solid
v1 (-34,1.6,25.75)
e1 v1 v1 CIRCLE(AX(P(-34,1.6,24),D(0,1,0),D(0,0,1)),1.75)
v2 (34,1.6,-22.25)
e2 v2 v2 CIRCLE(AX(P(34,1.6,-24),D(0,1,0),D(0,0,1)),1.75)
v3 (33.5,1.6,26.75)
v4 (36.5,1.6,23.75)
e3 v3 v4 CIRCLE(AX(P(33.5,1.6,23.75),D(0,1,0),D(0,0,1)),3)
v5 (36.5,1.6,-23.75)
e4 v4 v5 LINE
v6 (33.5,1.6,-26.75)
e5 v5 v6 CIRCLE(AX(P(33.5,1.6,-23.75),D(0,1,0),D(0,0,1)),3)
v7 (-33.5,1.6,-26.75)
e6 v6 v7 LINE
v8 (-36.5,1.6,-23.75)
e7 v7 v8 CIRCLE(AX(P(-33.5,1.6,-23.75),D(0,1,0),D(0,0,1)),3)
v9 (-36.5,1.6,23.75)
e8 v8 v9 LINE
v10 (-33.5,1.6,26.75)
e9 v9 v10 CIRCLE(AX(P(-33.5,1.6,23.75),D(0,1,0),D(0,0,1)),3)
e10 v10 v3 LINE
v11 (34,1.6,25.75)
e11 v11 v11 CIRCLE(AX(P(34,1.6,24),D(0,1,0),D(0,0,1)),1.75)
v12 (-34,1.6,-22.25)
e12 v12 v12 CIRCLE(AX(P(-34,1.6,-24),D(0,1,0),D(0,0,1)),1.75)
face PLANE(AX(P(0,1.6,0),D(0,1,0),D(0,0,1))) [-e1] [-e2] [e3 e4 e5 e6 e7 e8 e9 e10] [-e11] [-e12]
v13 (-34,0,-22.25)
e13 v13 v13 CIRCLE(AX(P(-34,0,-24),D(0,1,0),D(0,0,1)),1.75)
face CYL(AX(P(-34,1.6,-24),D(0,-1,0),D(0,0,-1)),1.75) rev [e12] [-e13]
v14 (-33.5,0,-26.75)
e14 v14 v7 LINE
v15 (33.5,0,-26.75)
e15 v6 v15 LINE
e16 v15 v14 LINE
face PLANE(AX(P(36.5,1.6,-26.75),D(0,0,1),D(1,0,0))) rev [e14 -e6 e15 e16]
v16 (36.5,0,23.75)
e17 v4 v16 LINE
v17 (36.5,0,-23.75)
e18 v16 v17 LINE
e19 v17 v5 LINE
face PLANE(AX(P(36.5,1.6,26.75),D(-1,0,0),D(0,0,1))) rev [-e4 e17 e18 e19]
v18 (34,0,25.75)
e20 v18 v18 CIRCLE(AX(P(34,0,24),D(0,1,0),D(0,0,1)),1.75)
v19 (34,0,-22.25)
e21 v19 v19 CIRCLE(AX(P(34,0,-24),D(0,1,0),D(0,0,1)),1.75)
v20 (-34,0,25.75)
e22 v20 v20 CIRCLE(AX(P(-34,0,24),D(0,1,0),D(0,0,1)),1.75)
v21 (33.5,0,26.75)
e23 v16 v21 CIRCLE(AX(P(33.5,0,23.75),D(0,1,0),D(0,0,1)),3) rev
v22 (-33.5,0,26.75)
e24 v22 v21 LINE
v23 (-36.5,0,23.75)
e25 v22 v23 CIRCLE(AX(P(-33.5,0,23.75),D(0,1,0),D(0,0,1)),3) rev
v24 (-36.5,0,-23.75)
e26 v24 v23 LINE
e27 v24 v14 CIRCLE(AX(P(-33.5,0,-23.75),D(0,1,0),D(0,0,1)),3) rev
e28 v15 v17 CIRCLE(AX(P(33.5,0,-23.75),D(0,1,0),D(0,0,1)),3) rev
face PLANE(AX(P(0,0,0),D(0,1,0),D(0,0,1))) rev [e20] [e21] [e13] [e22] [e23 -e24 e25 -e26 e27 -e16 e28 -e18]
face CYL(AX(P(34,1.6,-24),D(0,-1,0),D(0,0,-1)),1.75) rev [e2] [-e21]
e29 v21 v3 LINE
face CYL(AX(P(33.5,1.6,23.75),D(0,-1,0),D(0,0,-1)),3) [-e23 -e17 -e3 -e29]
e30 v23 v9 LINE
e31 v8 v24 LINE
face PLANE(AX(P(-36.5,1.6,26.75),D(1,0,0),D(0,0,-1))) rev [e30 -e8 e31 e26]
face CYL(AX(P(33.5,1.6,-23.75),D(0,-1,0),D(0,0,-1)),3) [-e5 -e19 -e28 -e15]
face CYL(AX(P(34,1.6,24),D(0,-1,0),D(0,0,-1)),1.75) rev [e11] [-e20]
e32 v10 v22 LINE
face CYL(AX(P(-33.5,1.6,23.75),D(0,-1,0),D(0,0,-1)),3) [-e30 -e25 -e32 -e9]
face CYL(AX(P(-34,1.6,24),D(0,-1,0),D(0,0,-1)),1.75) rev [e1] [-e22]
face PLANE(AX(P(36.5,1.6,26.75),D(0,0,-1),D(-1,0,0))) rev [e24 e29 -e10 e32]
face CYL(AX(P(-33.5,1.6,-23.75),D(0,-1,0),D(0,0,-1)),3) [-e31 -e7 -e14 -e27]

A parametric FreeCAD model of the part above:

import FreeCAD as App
import Part
import Sketcher
from FreeCAD import Vector
Q = App.Units.Quantity


def edges_at(feature, points):
    """Names of the edges that pass closest to the given points."""
    edges = feature.Shape.Edges
    near = lambda p: min(range(len(edges)), key=lambda i: edges[i].distToShape(Part.Vertex(*p))[0])
    return sorted({f"Edge{near(p) + 1}" for p in points})


def add_polygon(sketch, points):
    """Adds a closed chain of lines whose ends are joined by coincident constraints."""
    first, n = sketch.GeometryCount, len(points)
    for a, b in zip(points, points[1:] + points[:1]):
        sketch.addGeometry(Part.LineSegment(App.Vector(*a, 0), App.Vector(*b, 0)), False)
    for i in range(n):
        sketch.addConstraint(Sketcher.Constraint("Coincident", first + i, 2, first + (i + 1) % n, 1))

doc = App.newDocument("Part")
body = doc.addObject("PartDesign::Body", "Body")

# Sketch on XZ plane
sketch1 = body.newObject("Sketcher::SketchObject", "Sketch")
sketch1.AttachmentSupport = (doc.getObject("XZ_Plane"), [""])
sketch1.MapMode = "FlatFace"
add_polygon(sketch1, [(-36.5, -26.8), (-36.5, 26.8), (36.5, 26.8), (36.5, -26.8)])  # lines 0-3
sketch1.addGeometry(Part.Circle(Vector(-34, 24, 0), Vector(0, 0, 1), 1.8), False)  # 4
sketch1.addGeometry(Part.Circle(Vector(34, 24, 0), Vector(0, 0, 1), 1.8), False)  # 5
sketch1.addGeometry(Part.Circle(Vector(-34, -24, 0), Vector(0, 0, 1), 1.8), False)  # 6
sketch1.addGeometry(Part.Circle(Vector(34, -24, 0), Vector(0, 0, 1), 1.8), False)  # 7
sketch1.addConstraint([
    Sketcher.Constraint("Vertical", 0),
    Sketcher.Constraint("Horizontal", 1),
    Sketcher.Constraint("Vertical", 2),
    Sketcher.Constraint("Horizontal", 3),
    Sketcher.Constraint("Equal", 4, 5),
    Sketcher.Constraint("Equal", 5, 6),
    Sketcher.Constraint("Equal", 6, 7),
    Sketcher.Constraint("Symmetric", 5, 3, 6, 3, -1, 1),
    Sketcher.Constraint("Symmetric", 4, 3, 7, 3, -1, 1),
    Sketcher.Constraint("Symmetric", 0, 2, 2, 2, -1, 1),
    Sketcher.Constraint("Symmetric", 4, 3, 5, 3, -2),
    Sketcher.Constraint("Diameter", 4, Q("3.5 mm")),
    Sketcher.Constraint("DistanceX", 1, 1, 1, 2, Q("73 mm")),
    Sketcher.Constraint("DistanceY", 0, 1, 0, 2, Q("53.5 mm")),
    Sketcher.Constraint("DistanceX", 4, 3, -1, 1, Q("34 mm")),
    Sketcher.Constraint("DistanceY", -1, 1, 4, 3, Q("24 mm")),
])
pad1 = body.newObject("PartDesign::Pad", "Pad")
pad1.Profile = sketch1
pad1.Length = 1.6
pad1.Reversed = True
doc.recompute()

fillet = body.newObject("PartDesign::Fillet", "Fillet")
fillet.Base = (pad1, edges_at(pad1, [
    (-36.5, 0.8, -26.75),
    (36.5, 0.8, -26.75),
    (36.5, 0.8, 26.75),
    (-36.5, 0.8, 26.75),
]))
fillet.Radius = 3

doc.recompute()
